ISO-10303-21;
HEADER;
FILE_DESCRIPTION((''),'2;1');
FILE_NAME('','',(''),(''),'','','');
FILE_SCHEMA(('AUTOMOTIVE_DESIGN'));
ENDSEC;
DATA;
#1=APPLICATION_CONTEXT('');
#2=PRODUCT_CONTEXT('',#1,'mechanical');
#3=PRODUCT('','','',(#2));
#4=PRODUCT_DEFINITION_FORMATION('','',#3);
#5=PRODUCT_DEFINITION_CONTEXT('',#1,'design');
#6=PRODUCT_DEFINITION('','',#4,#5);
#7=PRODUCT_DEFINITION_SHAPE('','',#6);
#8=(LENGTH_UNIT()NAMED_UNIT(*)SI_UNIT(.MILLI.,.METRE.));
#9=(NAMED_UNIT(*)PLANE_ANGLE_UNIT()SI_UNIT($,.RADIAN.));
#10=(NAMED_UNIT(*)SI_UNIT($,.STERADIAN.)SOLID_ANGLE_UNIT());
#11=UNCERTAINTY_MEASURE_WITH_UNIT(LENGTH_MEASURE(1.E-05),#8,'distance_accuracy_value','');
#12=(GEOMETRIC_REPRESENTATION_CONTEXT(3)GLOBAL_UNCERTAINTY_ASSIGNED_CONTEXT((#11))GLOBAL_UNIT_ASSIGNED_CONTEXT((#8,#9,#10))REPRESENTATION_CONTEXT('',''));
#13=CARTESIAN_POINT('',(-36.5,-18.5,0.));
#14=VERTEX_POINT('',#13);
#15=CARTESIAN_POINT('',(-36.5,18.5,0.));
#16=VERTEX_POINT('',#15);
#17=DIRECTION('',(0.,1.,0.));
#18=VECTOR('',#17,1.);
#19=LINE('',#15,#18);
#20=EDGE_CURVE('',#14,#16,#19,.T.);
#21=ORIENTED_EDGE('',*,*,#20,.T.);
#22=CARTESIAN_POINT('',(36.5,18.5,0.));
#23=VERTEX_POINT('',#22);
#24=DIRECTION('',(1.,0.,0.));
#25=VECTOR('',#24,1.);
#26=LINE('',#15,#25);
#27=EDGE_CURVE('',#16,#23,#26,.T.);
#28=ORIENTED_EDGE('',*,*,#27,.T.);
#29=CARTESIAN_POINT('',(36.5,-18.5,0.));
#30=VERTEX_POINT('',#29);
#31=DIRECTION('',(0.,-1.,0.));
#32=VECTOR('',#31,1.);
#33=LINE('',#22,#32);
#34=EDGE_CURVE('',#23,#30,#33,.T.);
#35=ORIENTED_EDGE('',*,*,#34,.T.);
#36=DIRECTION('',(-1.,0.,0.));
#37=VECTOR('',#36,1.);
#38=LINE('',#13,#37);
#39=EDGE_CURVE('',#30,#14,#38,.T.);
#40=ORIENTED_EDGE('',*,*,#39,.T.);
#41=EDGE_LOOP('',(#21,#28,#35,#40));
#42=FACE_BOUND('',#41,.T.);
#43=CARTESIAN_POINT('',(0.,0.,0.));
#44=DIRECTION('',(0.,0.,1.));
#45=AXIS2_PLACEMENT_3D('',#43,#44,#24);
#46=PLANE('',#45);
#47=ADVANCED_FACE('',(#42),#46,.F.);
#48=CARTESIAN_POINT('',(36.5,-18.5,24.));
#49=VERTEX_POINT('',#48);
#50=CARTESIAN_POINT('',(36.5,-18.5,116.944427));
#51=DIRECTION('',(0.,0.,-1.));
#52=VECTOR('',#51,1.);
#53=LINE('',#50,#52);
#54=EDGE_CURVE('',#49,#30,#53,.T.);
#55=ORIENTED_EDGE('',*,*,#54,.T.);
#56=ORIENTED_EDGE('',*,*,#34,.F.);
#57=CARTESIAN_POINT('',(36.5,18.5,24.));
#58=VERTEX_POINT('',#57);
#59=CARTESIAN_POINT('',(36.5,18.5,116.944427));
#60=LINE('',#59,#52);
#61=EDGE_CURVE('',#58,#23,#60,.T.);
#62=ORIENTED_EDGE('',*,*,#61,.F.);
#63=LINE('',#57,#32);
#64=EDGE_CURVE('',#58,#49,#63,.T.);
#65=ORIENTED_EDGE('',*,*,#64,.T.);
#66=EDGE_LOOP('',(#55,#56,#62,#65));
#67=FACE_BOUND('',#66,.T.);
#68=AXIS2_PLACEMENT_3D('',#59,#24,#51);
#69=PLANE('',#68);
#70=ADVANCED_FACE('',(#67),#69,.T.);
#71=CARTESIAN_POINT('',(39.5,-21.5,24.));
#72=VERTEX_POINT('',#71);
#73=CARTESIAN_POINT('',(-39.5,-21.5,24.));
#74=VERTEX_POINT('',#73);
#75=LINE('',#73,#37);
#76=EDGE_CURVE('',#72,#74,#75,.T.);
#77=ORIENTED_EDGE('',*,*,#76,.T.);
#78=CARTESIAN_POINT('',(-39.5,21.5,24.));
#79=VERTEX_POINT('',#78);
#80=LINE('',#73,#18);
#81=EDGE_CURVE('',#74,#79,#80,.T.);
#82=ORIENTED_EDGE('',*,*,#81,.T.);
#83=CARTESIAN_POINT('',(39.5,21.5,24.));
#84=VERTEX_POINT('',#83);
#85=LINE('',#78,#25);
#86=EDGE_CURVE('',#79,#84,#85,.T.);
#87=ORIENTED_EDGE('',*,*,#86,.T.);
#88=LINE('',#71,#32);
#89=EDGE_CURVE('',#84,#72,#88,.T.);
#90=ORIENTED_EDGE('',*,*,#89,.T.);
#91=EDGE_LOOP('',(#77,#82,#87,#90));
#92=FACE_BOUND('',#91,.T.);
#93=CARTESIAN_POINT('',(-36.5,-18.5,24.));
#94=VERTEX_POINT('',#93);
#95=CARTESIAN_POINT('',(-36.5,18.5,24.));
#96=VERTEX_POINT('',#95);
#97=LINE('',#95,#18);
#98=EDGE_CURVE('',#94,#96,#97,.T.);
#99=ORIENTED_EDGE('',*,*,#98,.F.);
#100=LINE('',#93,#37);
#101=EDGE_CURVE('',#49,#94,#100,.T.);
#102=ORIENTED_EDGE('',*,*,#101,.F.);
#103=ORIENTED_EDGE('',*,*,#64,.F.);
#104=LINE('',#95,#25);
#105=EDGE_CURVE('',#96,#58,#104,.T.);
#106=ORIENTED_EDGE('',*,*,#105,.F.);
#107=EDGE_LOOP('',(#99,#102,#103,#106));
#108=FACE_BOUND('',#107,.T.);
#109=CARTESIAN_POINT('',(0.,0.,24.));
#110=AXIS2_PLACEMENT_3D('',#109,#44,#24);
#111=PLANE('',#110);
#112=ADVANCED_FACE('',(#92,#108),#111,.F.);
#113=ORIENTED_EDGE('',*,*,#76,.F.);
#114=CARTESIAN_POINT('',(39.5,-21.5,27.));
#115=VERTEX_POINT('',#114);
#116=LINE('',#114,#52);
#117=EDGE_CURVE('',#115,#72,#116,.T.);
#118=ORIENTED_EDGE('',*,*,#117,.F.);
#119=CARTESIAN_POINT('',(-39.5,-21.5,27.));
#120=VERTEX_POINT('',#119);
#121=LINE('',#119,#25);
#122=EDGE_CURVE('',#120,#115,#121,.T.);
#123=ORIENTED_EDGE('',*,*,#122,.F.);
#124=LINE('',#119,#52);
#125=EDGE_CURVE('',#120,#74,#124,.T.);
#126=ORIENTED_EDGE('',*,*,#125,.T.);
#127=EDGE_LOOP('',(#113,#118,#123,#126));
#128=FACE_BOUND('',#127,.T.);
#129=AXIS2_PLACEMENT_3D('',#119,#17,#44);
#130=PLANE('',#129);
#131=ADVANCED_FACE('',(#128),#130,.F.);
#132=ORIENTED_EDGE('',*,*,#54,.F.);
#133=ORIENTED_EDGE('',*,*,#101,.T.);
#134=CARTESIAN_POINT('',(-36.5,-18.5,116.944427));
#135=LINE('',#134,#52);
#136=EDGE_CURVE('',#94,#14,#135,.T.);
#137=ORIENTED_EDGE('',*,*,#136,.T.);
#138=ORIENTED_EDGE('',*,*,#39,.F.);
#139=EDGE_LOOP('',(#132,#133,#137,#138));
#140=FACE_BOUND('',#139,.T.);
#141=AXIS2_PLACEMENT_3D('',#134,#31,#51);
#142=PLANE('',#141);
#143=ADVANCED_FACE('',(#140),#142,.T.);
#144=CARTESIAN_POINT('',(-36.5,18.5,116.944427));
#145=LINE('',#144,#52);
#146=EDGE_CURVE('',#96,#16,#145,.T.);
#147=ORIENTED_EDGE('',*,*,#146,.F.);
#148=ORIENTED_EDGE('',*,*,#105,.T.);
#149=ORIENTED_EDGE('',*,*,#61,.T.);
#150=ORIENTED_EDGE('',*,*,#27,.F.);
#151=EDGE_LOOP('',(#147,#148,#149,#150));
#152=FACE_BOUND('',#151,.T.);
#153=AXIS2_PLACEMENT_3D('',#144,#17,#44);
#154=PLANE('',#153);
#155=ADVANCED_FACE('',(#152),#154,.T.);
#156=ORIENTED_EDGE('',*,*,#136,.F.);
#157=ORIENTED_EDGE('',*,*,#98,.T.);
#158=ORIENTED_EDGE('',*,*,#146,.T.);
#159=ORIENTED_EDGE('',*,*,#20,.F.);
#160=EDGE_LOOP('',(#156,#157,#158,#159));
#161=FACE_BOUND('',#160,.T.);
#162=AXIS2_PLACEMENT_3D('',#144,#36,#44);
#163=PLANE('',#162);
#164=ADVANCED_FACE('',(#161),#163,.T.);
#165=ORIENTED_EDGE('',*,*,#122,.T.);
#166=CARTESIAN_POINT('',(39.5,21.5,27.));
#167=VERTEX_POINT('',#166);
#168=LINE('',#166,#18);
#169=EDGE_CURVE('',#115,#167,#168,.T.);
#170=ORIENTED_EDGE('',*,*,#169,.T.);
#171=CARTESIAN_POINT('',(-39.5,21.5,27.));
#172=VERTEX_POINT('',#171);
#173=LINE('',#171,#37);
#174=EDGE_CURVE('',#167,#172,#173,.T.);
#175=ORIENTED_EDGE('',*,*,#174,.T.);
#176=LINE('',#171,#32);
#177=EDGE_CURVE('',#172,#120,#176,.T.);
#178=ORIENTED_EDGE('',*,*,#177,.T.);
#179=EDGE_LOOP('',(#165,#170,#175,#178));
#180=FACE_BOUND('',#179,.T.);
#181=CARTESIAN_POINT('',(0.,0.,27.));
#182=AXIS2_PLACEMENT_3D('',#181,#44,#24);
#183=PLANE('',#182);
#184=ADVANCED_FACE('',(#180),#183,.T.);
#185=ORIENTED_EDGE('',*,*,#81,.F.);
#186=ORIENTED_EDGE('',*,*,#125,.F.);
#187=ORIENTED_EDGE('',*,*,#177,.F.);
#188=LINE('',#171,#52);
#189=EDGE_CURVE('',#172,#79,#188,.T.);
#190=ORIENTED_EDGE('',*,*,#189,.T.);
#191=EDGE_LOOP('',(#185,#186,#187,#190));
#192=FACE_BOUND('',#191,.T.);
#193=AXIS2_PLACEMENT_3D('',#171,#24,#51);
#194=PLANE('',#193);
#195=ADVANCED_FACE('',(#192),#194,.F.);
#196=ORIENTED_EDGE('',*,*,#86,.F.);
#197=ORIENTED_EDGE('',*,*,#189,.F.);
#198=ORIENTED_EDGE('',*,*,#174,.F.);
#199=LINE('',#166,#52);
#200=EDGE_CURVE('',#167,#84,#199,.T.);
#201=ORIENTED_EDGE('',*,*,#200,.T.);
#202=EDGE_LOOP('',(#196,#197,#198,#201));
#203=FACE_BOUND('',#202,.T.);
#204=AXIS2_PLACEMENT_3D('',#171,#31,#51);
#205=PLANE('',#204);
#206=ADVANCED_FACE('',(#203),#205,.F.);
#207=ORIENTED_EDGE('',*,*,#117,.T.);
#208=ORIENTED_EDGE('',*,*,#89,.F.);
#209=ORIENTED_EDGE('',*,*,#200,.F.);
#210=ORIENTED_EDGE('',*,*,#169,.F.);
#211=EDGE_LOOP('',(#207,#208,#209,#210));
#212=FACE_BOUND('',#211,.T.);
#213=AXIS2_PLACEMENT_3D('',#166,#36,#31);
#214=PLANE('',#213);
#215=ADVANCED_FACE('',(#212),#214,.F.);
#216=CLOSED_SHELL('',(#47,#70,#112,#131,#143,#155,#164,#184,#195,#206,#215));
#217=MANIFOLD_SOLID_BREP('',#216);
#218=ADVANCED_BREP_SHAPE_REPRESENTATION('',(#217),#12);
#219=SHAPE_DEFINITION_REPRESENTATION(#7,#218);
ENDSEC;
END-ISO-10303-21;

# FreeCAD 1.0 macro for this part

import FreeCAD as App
import Part
import Sketcher
from FreeCAD import Vector


def add_polygon(sketch, points):
    """Adds a closed chain of lines whose ends are joined by coincident constraints."""
    first, n = sketch.GeometryCount, len(points)
    for a, b in zip(points, points[1:] + points[:1]):
        sketch.addGeometry(Part.LineSegment(App.Vector(*a, 0), App.Vector(*b, 0)), False)
    for i in range(n):
        sketch.addConstraint(Sketcher.Constraint("Coincident", first + i, 2, first + (i + 1) % n, 1))

doc = App.newDocument("Part")
body = doc.addObject("PartDesign::Body", "Body")

sketch1 = body.newObject("Sketcher::SketchObject", "Sketch")
sketch1.AttachmentSupport = (doc.getObject("XY_Plane"), [""])
sketch1.MapMode = "FlatFace"
add_polygon(sketch1, [(-40, 22), (-40, -22), (40, -22), (40, 22)])
sketch1.addConstraint([
    Sketcher.Constraint("Vertical", 0),
    Sketcher.Constraint("Horizontal", 1),
    Sketcher.Constraint("Vertical", 2),
    Sketcher.Constraint("Horizontal", 3),
    Sketcher.Constraint("Symmetric", 0, 2, 2, 2, -1, 1),
    Sketcher.Constraint("DistanceX", 1, 1, 1, 2, 79.0),
    Sketcher.Constraint("DistanceY", 0, 2, 0, 1, 43.0),
])
pad1 = body.newObject("PartDesign::Pad", "Pad")
pad1.Profile = sketch1
pad1.Length = 27

sketch2 = body.newObject("Sketcher::SketchObject", "Sketch001")
sketch2.AttachmentSupport = (doc.getObject("XY_Plane"), [""])
sketch2.MapMode = "FlatFace"
add_polygon(sketch2, [(40, 22), (40, -22), (-40, -22), (-40, 22)])
add_polygon(sketch2, [(-36, -18), (36, -18), (36, 18), (-36, 18)])
sketch2.addConstraint([
    Sketcher.Constraint("Vertical", 0),
    Sketcher.Constraint("Horizontal", 1),
    Sketcher.Constraint("Vertical", 2),
    Sketcher.Constraint("Horizontal", 3),
    Sketcher.Constraint("Horizontal", 4),
    Sketcher.Constraint("Vertical", 5),
    Sketcher.Constraint("Horizontal", 6),
    Sketcher.Constraint("Vertical", 7),
    Sketcher.Constraint("Symmetric", 0, 2, 2, 2, -1, 1),
    Sketcher.Constraint("Symmetric", 4, 2, 6, 2, -1, 1),
    Sketcher.Constraint("DistanceX", 1, 2, 1, 1, 79.0),
    Sketcher.Constraint("DistanceX", 4, 1, 4, 2, 73.0),
    Sketcher.Constraint("DistanceY", 0, 2, 0, 1, 43.0),
    Sketcher.Constraint("DistanceY", 5, 1, 5, 2, 37.0),
])
pocket1 = body.newObject("PartDesign::Pocket", "Pocket")
pocket1.Profile = sketch2
pocket1.Length = 24
pocket1.Reversed = True

doc.recompute()
